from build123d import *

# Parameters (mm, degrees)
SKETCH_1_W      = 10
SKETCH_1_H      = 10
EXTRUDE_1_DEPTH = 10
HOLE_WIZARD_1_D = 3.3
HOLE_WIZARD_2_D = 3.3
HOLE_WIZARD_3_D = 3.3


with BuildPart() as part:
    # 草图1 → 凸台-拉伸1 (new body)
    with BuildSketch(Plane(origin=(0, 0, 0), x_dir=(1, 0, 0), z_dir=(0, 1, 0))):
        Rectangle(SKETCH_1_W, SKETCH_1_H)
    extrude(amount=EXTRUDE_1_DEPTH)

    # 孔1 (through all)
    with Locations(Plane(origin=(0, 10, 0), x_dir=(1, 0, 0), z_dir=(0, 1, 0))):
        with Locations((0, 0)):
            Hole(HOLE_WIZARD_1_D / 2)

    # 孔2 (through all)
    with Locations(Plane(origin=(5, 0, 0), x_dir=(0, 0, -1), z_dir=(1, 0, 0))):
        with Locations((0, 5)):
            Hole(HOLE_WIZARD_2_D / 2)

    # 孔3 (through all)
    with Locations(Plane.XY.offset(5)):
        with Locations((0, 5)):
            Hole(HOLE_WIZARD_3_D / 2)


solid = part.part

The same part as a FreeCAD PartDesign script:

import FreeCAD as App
import Part
import Sketcher


def add_polygon(sketch, points):
    """Adds a closed chain of lines whose ends are joined by coincident constraints."""
    first, n = sketch.GeometryCount, len(points)
    for a, b in zip(points, points[1:] + points[:1]):
        sketch.addGeometry(Part.LineSegment(App.Vector(*a, 0), App.Vector(*b, 0)), False)
    for i in range(n):
        sketch.addConstraint(Sketcher.Constraint("Coincident", first + i, 2, first + (i + 1) % n, 1))

doc = App.newDocument("Part")
body = doc.addObject("PartDesign::Body", "Body")

# Sketch on XZ plane
sketch1 = doc.addObject("Sketcher::SketchObject", "Sketch")
body.addObject(sketch1)
sketch1.AttachmentSupport = (doc.XZ_Plane, [""])
sketch1.MapMode = "FlatFace"
add_polygon(sketch1, [(-5, -5), (-5, 5), (5, 5), (5, -5)])  # lines 0-3
sketch1.addConstraint([
    Sketcher.Constraint("Vertical", 0),
    Sketcher.Constraint("Horizontal", 1),
    Sketcher.Constraint("Vertical", 2),
    Sketcher.Constraint("Horizontal", 3),
    Sketcher.Constraint("Symmetric", 0, 2, 2, 2, -1, 1),
    Sketcher.Constraint("Equal", 3, 0),
    Sketcher.Constraint("DistanceX", 1, 1, 1, 2, 10.0),
])
pad1 = doc.addObject("PartDesign::Pad", "Pad")
body.addObject(pad1)
pad1.Profile = sketch1
pad1.Length = 10
pad1.Reversed = True

# Sketch on XZ plane
sketch2 = doc.addObject("Sketcher::SketchObject", "Sketch001")
body.addObject(sketch2)
sketch2.AttachmentSupport = (doc.XZ_Plane, [""])
sketch2.MapMode = "FlatFace"
sketch2.AttachmentOffset = App.Placement(App.Vector(0, 0, -10), App.Rotation())
sketch2.addGeometry(Part.Circle(App.Vector(0, 0, 0), App.Vector(0, 0, 1), 1.6), False)
sketch2.addConstraint([
    Sketcher.Constraint("Coincident", 0, 3, -1, 1),
    Sketcher.Constraint("Diameter", 0, 3.3),
])
doc.recompute()
hole = doc.addObject("PartDesign::Hole", "Hole")
body.addObject(hole)
hole.Profile = sketch2
hole.ThreadType = "None"
hole.Diameter = 3.3
hole.DepthType = "ThroughAll"
hole.Reversed = True

# Sketch on YZ plane
sketch3 = doc.addObject("Sketcher::SketchObject", "Sketch002")
body.addObject(sketch3)
sketch3.AttachmentSupport = (doc.YZ_Plane, [""])
sketch3.MapMode = "FlatFace"
sketch3.AttachmentOffset = App.Placement(App.Vector(0, 0, 5), App.Rotation())
sketch3.addGeometry(Part.Circle(App.Vector(5, 0, 0), App.Vector(0, 0, 1), 1.6), False)
sketch3.addConstraint([
    Sketcher.Constraint("PointOnObject", 0, 3, -1),
    Sketcher.Constraint("Diameter", 0, 3.3),
    Sketcher.Constraint("DistanceX", -1, 1, 0, 3, 5.0),
])
doc.recompute()
hole2 = doc.addObject("PartDesign::Hole", "Hole001")
body.addObject(hole2)
hole2.Profile = sketch3
hole2.ThreadType = "None"
hole2.Diameter = 3.3
hole2.DepthType = "ThroughAll"

# Sketch on XY plane
sketch4 = doc.addObject("Sketcher::SketchObject", "Sketch003")
body.addObject(sketch4)
sketch4.AttachmentSupport = (doc.XY_Plane, [""])
sketch4.MapMode = "FlatFace"
sketch4.AttachmentOffset = App.Placement(App.Vector(0, 0, 5), App.Rotation())
sketch4.addGeometry(Part.Circle(App.Vector(0, 5, 0), App.Vector(0, 0, 1), 1.6), False)
sketch4.addConstraint([
    Sketcher.Constraint("PointOnObject", 0, 3, -2),
    Sketcher.Constraint("Diameter", 0, 3.3),
    Sketcher.Constraint("DistanceY", -1, 1, 0, 3, 5.0),
])
doc.recompute()
hole3 = doc.addObject("PartDesign::Hole", "Hole002")
body.addObject(hole3)
hole3.Profile = sketch4
hole3.ThreadType = "None"
hole3.Diameter = 3.3
hole3.DepthType = "ThroughAll"

doc.recompute()
